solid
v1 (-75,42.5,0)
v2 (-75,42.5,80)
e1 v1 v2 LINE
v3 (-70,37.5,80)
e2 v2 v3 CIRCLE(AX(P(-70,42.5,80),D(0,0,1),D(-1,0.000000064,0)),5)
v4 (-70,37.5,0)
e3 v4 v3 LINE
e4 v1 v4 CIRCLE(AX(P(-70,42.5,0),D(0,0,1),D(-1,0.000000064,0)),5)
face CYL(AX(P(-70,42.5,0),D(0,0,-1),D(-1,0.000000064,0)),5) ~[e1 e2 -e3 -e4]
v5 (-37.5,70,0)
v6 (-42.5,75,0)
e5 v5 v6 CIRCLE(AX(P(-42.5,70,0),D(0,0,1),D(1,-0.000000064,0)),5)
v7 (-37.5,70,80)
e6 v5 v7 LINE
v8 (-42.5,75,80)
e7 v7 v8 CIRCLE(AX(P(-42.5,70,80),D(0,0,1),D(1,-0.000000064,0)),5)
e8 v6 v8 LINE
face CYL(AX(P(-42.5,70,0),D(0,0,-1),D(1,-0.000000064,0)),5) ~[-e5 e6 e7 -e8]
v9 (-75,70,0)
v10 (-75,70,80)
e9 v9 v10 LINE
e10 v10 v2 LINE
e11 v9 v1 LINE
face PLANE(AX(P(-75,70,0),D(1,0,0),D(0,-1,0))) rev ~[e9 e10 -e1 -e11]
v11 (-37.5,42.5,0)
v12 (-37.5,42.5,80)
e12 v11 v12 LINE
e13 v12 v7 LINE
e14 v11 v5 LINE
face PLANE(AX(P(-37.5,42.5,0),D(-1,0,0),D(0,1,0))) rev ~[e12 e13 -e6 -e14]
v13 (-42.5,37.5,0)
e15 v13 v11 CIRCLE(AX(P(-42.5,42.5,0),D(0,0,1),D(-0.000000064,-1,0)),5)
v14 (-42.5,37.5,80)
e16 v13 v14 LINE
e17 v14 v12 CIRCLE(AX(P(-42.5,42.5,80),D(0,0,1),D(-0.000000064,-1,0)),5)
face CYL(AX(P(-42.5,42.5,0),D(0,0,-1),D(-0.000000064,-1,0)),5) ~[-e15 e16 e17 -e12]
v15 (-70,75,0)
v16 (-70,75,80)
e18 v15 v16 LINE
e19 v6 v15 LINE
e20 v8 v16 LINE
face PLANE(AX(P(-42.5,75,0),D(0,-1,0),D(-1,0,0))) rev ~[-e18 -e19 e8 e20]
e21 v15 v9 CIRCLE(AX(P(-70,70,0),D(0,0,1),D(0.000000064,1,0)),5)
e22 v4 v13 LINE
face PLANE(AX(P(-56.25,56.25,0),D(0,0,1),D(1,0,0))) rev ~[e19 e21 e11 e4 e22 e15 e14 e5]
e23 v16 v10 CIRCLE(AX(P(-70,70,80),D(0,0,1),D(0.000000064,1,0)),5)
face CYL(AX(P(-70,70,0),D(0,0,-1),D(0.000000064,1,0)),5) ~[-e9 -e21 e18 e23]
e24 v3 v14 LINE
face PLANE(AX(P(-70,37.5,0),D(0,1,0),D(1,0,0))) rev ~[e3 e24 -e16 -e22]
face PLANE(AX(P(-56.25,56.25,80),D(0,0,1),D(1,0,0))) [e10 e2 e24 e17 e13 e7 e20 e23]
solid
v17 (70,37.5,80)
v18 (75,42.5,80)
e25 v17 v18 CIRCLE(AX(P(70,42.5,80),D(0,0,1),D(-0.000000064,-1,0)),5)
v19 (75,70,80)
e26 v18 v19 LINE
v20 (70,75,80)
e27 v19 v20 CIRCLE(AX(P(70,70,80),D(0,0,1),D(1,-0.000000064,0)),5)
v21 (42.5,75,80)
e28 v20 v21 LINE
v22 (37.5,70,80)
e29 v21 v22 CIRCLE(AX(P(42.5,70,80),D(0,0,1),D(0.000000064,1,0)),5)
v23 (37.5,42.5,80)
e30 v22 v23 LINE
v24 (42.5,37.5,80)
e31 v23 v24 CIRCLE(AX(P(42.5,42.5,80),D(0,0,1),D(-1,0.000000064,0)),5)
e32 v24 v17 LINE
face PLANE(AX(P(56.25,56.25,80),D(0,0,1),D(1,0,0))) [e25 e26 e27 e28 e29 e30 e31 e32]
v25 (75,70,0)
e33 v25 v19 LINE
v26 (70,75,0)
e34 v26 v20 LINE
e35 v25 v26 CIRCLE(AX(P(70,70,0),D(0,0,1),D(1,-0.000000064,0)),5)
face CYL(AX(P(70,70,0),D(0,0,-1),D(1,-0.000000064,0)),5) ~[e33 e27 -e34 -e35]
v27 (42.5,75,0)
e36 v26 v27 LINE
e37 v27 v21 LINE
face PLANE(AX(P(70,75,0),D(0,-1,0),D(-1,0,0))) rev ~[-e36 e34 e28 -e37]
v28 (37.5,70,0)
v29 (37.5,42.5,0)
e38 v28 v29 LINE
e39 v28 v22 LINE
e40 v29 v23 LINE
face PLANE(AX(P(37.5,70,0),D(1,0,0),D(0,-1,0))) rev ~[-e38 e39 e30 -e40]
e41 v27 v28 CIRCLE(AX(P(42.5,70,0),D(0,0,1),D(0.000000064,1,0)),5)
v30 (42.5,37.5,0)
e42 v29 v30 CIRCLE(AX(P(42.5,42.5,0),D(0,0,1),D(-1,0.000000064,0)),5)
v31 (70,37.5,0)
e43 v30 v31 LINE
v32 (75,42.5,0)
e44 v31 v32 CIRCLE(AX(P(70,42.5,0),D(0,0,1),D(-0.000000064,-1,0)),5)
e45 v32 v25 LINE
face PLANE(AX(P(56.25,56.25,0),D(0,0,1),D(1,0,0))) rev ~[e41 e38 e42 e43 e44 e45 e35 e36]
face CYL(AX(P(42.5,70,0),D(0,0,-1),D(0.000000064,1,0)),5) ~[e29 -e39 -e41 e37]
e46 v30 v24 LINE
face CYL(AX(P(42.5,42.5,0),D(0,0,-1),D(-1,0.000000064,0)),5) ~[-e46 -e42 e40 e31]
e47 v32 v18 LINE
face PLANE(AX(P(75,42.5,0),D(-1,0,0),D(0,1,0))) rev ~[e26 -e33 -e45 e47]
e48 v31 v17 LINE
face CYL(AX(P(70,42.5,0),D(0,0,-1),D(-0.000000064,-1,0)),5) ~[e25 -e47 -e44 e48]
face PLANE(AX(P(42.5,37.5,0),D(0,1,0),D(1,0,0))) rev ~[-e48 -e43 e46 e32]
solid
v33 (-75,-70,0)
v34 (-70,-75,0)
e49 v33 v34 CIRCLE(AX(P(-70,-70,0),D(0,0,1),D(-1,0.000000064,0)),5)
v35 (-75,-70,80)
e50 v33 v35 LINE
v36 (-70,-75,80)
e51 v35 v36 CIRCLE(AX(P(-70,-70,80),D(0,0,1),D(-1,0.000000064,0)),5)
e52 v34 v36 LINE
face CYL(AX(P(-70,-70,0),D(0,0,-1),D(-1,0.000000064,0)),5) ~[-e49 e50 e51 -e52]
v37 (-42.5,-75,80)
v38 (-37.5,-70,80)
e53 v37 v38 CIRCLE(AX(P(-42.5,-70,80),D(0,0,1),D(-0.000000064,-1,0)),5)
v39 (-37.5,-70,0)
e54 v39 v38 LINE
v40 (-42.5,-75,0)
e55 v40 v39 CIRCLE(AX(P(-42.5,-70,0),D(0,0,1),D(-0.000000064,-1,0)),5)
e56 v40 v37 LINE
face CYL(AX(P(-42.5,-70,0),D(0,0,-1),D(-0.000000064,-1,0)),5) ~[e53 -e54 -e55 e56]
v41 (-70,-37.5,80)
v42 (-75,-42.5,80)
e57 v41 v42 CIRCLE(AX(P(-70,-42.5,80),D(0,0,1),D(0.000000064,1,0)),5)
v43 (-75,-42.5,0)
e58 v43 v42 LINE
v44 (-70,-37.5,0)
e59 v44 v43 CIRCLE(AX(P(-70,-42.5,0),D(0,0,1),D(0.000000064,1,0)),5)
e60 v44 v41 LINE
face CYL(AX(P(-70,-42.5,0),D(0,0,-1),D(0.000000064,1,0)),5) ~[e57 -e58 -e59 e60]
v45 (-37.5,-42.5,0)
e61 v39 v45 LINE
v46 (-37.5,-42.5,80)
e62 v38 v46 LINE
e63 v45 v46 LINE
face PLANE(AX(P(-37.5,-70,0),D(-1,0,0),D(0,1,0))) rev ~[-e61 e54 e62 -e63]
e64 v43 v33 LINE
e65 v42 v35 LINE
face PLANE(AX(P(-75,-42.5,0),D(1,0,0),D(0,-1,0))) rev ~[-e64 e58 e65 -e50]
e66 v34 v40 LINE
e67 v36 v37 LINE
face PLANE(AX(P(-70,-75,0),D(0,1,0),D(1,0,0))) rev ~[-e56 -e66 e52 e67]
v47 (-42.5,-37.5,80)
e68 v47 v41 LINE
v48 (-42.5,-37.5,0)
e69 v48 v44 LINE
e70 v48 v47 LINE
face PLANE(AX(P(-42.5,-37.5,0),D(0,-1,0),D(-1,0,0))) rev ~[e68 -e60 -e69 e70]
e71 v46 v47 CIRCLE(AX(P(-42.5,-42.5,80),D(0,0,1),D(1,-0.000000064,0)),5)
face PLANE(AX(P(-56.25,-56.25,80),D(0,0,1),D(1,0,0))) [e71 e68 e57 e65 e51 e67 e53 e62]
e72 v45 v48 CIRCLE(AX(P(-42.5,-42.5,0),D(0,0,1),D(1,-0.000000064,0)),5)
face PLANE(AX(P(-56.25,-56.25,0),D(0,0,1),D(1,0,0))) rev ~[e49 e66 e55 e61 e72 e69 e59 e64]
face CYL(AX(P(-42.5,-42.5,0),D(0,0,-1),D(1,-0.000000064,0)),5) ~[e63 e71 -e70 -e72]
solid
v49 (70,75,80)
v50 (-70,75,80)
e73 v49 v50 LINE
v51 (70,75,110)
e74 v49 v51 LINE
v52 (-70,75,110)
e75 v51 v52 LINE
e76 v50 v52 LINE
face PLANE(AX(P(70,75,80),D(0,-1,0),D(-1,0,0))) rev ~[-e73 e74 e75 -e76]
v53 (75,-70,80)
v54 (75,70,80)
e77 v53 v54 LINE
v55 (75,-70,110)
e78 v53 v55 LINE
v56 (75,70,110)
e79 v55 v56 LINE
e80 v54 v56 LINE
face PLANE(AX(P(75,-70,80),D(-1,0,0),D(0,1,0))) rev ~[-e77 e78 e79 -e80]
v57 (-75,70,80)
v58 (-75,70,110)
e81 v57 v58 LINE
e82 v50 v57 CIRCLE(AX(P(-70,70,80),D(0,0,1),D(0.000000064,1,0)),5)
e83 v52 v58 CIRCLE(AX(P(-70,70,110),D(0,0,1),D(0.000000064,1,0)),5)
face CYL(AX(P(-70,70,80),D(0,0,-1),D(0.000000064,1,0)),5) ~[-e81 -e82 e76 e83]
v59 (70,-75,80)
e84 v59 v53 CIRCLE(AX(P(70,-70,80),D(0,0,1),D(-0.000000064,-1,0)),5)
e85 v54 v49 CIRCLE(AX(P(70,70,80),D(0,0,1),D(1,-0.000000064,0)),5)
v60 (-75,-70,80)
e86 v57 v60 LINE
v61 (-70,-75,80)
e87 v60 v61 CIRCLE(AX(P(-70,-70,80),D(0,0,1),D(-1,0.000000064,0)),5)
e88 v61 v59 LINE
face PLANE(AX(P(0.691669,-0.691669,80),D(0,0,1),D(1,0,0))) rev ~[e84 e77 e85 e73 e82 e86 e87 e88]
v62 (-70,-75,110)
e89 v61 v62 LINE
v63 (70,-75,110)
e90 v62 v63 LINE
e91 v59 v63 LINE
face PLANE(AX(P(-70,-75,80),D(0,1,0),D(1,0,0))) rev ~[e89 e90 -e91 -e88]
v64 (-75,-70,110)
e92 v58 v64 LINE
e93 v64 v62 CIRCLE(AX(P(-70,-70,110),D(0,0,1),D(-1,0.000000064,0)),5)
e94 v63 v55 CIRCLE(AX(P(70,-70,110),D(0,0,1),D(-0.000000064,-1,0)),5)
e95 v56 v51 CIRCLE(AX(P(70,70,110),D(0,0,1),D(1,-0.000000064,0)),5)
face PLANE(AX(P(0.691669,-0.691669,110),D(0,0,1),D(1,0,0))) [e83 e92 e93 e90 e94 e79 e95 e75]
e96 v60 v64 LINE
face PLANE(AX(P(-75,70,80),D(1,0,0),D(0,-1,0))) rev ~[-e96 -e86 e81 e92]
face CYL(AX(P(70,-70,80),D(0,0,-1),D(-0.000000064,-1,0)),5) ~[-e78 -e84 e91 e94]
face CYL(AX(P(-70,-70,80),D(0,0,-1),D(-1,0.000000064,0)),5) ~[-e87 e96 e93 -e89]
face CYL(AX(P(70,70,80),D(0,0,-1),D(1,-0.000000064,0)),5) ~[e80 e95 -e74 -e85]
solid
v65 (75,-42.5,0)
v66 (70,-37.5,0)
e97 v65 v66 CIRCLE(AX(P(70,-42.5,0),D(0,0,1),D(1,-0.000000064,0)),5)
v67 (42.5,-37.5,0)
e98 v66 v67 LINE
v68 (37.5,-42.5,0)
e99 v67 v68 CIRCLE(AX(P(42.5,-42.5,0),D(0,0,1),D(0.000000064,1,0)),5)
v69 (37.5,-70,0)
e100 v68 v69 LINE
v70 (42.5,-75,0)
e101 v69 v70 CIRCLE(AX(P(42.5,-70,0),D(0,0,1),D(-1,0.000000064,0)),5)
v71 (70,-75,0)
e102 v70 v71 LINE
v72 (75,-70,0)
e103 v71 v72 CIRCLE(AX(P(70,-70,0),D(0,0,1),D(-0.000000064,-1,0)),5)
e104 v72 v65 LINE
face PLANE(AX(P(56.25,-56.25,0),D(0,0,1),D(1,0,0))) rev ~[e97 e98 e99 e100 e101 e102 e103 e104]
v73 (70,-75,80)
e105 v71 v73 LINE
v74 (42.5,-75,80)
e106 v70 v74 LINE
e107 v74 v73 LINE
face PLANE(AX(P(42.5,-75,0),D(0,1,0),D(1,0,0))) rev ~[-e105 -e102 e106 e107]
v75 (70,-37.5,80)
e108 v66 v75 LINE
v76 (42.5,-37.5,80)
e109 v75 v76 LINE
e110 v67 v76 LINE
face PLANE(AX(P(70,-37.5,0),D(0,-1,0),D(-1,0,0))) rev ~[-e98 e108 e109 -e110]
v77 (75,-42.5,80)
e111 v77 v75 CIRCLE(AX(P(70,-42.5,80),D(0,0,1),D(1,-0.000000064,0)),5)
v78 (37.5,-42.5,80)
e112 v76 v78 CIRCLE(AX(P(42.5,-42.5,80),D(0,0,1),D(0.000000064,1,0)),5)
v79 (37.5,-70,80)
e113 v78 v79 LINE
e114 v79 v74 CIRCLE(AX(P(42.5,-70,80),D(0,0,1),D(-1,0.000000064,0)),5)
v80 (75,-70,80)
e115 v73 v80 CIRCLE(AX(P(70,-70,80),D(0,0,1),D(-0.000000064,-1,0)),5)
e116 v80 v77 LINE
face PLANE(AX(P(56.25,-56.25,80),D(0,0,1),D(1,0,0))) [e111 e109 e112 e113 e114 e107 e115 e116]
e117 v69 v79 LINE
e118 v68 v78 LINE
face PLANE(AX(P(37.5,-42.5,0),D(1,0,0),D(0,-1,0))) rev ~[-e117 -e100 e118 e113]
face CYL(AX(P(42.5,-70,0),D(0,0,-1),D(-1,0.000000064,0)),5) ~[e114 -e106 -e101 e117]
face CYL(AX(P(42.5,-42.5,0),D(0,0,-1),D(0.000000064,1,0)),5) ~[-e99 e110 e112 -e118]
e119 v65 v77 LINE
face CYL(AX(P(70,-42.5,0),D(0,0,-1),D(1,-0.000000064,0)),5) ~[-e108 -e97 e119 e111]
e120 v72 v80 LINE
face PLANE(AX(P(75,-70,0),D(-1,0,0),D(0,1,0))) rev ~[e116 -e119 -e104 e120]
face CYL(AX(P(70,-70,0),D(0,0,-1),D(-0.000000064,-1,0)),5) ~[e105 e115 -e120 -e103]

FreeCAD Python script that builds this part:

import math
import FreeCAD as App
import Part
import Sketcher
from FreeCAD import Vector

doc = App.newDocument("Part")
body = doc.addObject("PartDesign::Body", "Body")
body.AllowCompound = True

# Sketch on XY plane
sketch1 = body.newObject("Sketcher::SketchObject", "Sketch")
sketch1.AttachmentSupport = (doc.getObject("XY_Plane"), [""])
sketch1.MapMode = "FlatFace"
sketch1.addGeometry(Part.LineSegment(Vector(37.5, 70, 0), Vector(37.5, 42.5, 0)), False)
sketch1.addGeometry(Part.ArcOfCircle(Part.Circle(Vector(42.5, 42.5, 0), Vector(0, 0, 1), 5), math.radians(180), math.radians(270)), False)
sketch1.addGeometry(Part.LineSegment(Vector(42.5, 37.5, 0), Vector(70, 37.5, 0)), False)
sketch1.addGeometry(Part.ArcOfCircle(Part.Circle(Vector(70, 42.5, 0), Vector(0, 0, 1), 5), math.radians(-90), math.radians(0)), False)
sketch1.addGeometry(Part.LineSegment(Vector(75, 42.5, 0), Vector(75, 70, 0)), False)
sketch1.addGeometry(Part.ArcOfCircle(Part.Circle(Vector(70, 70, 0), Vector(0, 0, 1), 5), math.radians(0), math.radians(90)), False)
sketch1.addGeometry(Part.LineSegment(Vector(70, 75, 0), Vector(42.5, 75, 0)), False)
sketch1.addGeometry(Part.ArcOfCircle(Part.Circle(Vector(42.5, 70, 0), Vector(0, 0, 1), 5), math.radians(90), math.radians(180)), False)
sketch1.addGeometry(Part.LineSegment(Vector(-70, 37.5, 0), Vector(-42.5, 37.5, 0)), False)
sketch1.addGeometry(Part.ArcOfCircle(Part.Circle(Vector(-42.5, 42.5, 0), Vector(0, 0, 1), 5), math.radians(-90), math.radians(0)), False)
sketch1.addGeometry(Part.LineSegment(Vector(-37.5, 42.5, 0), Vector(-37.5, 70, 0)), False)
sketch1.addGeometry(Part.ArcOfCircle(Part.Circle(Vector(-42.5, 70, 0), Vector(0, 0, 1), 5), math.radians(0), math.radians(90)), False)
sketch1.addGeometry(Part.LineSegment(Vector(-42.5, 75, 0), Vector(-70, 75, 0)), False)
sketch1.addGeometry(Part.ArcOfCircle(Part.Circle(Vector(-70, 70, 0), Vector(0, 0, 1), 5), math.radians(90), math.radians(180)), False)
sketch1.addGeometry(Part.LineSegment(Vector(-75, 70, 0), Vector(-75, 42.5, 0)), False)
sketch1.addGeometry(Part.ArcOfCircle(Part.Circle(Vector(-70, 42.5, 0), Vector(0, 0, 1), 5), math.radians(180), math.radians(270)), False)
sketch1.addGeometry(Part.ArcOfCircle(Part.Circle(Vector(-42.5, -42.5, 0), Vector(0, 0, 1), 5), math.radians(0), math.radians(90)), False)
sketch1.addGeometry(Part.LineSegment(Vector(-42.5, -37.5, 0), Vector(-70, -37.5, 0)), False)
sketch1.addGeometry(Part.ArcOfCircle(Part.Circle(Vector(-70, -42.5, 0), Vector(0, 0, 1), 5), math.radians(90), math.radians(180)), False)
sketch1.addGeometry(Part.LineSegment(Vector(-75, -42.5, 0), Vector(-75, -70, 0)), False)
sketch1.addGeometry(Part.ArcOfCircle(Part.Circle(Vector(-70, -70, 0), Vector(0, 0, 1), 5), math.radians(180), math.radians(270)), False)
sketch1.addGeometry(Part.LineSegment(Vector(-70, -75, 0), Vector(-42.5, -75, 0)), False)
sketch1.addGeometry(Part.ArcOfCircle(Part.Circle(Vector(-42.5, -70, 0), Vector(0, 0, 1), 5), math.radians(-90), math.radians(0)), False)
sketch1.addGeometry(Part.LineSegment(Vector(-37.5, -70, 0), Vector(-37.5, -42.5, 0)), False)
sketch1.addGeometry(Part.LineSegment(Vector(70, -37.5, 0), Vector(42.5, -37.5, 0)), False)
sketch1.addGeometry(Part.ArcOfCircle(Part.Circle(Vector(42.5, -42.5, 0), Vector(0, 0, 1), 5), math.radians(90), math.radians(180)), False)
sketch1.addGeometry(Part.LineSegment(Vector(37.5, -42.5, 0), Vector(37.5, -70, 0)), False)
sketch1.addGeometry(Part.ArcOfCircle(Part.Circle(Vector(42.5, -70, 0), Vector(0, 0, 1), 5), math.radians(180), math.radians(270)), False)
sketch1.addGeometry(Part.LineSegment(Vector(42.5, -75, 0), Vector(70, -75, 0)), False)
sketch1.addGeometry(Part.ArcOfCircle(Part.Circle(Vector(70, -70, 0), Vector(0, 0, 1), 5), math.radians(-90), math.radians(0)), False)
sketch1.addGeometry(Part.LineSegment(Vector(75, -70, 0), Vector(75, -42.5, 0)), False)
sketch1.addGeometry(Part.ArcOfCircle(Part.Circle(Vector(70, -42.5, 0), Vector(0, 0, 1), 5), math.radians(0), math.radians(90)), False)
sketch1.addConstraint(Sketcher.Constraint("Tangent", 0, 2, 1, 1))
sketch1.addConstraint(Sketcher.Constraint("Tangent", 1, 2, 2, 1))
sketch1.addConstraint(Sketcher.Constraint("Tangent", 2, 2, 3, 1))
sketch1.addConstraint(Sketcher.Constraint("Tangent", 3, 2, 4, 1))
sketch1.addConstraint(Sketcher.Constraint("Tangent", 4, 2, 5, 1))
sketch1.addConstraint(Sketcher.Constraint("Tangent", 5, 2, 6, 1))
sketch1.addConstraint(Sketcher.Constraint("Tangent", 6, 2, 7, 1))
sketch1.addConstraint(Sketcher.Constraint("Tangent", 7, 2, 0, 1))
sketch1.addConstraint(Sketcher.Constraint("Tangent", 8, 2, 9, 1))
sketch1.addConstraint(Sketcher.Constraint("Tangent", 9, 2, 10, 1))
sketch1.addConstraint(Sketcher.Constraint("Tangent", 10, 2, 11, 1))
sketch1.addConstraint(Sketcher.Constraint("Tangent", 11, 2, 12, 1))
sketch1.addConstraint(Sketcher.Constraint("Tangent", 12, 2, 13, 1))
sketch1.addConstraint(Sketcher.Constraint("Tangent", 13, 2, 14, 1))
sketch1.addConstraint(Sketcher.Constraint("Tangent", 14, 2, 15, 1))
sketch1.addConstraint(Sketcher.Constraint("Tangent", 15, 2, 8, 1))
sketch1.addConstraint(Sketcher.Constraint("Tangent", 16, 2, 17, 1))
sketch1.addConstraint(Sketcher.Constraint("Tangent", 17, 2, 18, 1))
sketch1.addConstraint(Sketcher.Constraint("Tangent", 18, 2, 19, 1))
sketch1.addConstraint(Sketcher.Constraint("Tangent", 19, 2, 20, 1))
sketch1.addConstraint(Sketcher.Constraint("Tangent", 20, 2, 21, 1))
sketch1.addConstraint(Sketcher.Constraint("Tangent", 21, 2, 22, 1))
sketch1.addConstraint(Sketcher.Constraint("Tangent", 22, 2, 23, 1))
sketch1.addConstraint(Sketcher.Constraint("Tangent", 23, 2, 16, 1))
sketch1.addConstraint(Sketcher.Constraint("Tangent", 24, 2, 25, 1))
sketch1.addConstraint(Sketcher.Constraint("Tangent", 25, 2, 26, 1))
sketch1.addConstraint(Sketcher.Constraint("Tangent", 26, 2, 27, 1))
sketch1.addConstraint(Sketcher.Constraint("Tangent", 27, 2, 28, 1))
sketch1.addConstraint(Sketcher.Constraint("Tangent", 28, 2, 29, 1))
sketch1.addConstraint(Sketcher.Constraint("Tangent", 29, 2, 30, 1))
sketch1.addConstraint(Sketcher.Constraint("Tangent", 30, 2, 31, 1))
sketch1.addConstraint(Sketcher.Constraint("Tangent", 31, 2, 24, 1))
sketch1.addConstraint(Sketcher.Constraint("Vertical", 0))
sketch1.addConstraint(Sketcher.Constraint("Horizontal", 2))
sketch1.addConstraint(Sketcher.Constraint("Vertical", 4))
sketch1.addConstraint(Sketcher.Constraint("Horizontal", 6))
sketch1.addConstraint(Sketcher.Constraint("Horizontal", 8))
sketch1.addConstraint(Sketcher.Constraint("Vertical", 10))
sketch1.addConstraint(Sketcher.Constraint("Horizontal", 12))
sketch1.addConstraint(Sketcher.Constraint("Vertical", 14))
sketch1.addConstraint(Sketcher.Constraint("Horizontal", 17))
sketch1.addConstraint(Sketcher.Constraint("Vertical", 19))
sketch1.addConstraint(Sketcher.Constraint("Horizontal", 21))
sketch1.addConstraint(Sketcher.Constraint("Vertical", 23))
sketch1.addConstraint(Sketcher.Constraint("Horizontal", 24))
sketch1.addConstraint(Sketcher.Constraint("Vertical", 26))
sketch1.addConstraint(Sketcher.Constraint("Horizontal", 28))
sketch1.addConstraint(Sketcher.Constraint("Vertical", 30))
sketch1.addConstraint(Sketcher.Constraint("Equal", 1, 3))
sketch1.addConstraint(Sketcher.Constraint("Equal", 3, 5))
sketch1.addConstraint(Sketcher.Constraint("Equal", 5, 7))
sketch1.addConstraint(Sketcher.Constraint("Equal", 7, 9))
sketch1.addConstraint(Sketcher.Constraint("Equal", 9, 11))
sketch1.addConstraint(Sketcher.Constraint("Equal", 11, 13))
sketch1.addConstraint(Sketcher.Constraint("Equal", 13, 15))
sketch1.addConstraint(Sketcher.Constraint("Equal", 15, 16))
sketch1.addConstraint(Sketcher.Constraint("Equal", 16, 18))
sketch1.addConstraint(Sketcher.Constraint("Equal", 18, 20))
sketch1.addConstraint(Sketcher.Constraint("Equal", 20, 22))
sketch1.addConstraint(Sketcher.Constraint("Equal", 22, 25))
sketch1.addConstraint(Sketcher.Constraint("Equal", 25, 27))
sketch1.addConstraint(Sketcher.Constraint("Equal", 27, 29))
sketch1.addConstraint(Sketcher.Constraint("Equal", 29, 31))
sketch1.addConstraint(Sketcher.Constraint("Symmetric", 1, 3, 16, 3, -1, 1))
sketch1.addConstraint(Sketcher.Constraint("Symmetric", 5, 3, 20, 3, -1, 1))
sketch1.addConstraint(Sketcher.Constraint("Symmetric", 9, 3, 25, 3, -1, 1))
sketch1.addConstraint(Sketcher.Constraint("Symmetric", 13, 3, 29, 3, -1, 1))
sketch1.addConstraint(Sketcher.Constraint("Symmetric", 1, 3, 9, 3, -2))
sketch1.addConstraint(Sketcher.Constraint("Symmetric", 5, 3, 13, 3, -2))
sketch1.addConstraint(Sketcher.Constraint("Equal", 28, 0))
sketch1.addConstraint(Sketcher.Constraint("Radius", 1, 5.0))
sketch1.addConstraint(Sketcher.Constraint("DistanceX", 2, 1, 2, 2, 27.5))
sketch1.addConstraint(Sketcher.Constraint("DistanceX", -1, 1, 3, 3, 70.0))
sketch1.addConstraint(Sketcher.Constraint("DistanceY", -1, 1, 5, 3, 70.0))
pad1 = body.newObject("PartDesign::Pad", "Pad")
pad1.Profile = sketch1
pad1.Length = 80
body2 = doc.addObject("PartDesign::Body", "Body001")

# Sketch on XY plane
sketch2 = body2.newObject("Sketcher::SketchObject", "Sketch001")
sketch2.AttachmentSupport = (doc.getObject("XY_Plane001"), [""])
sketch2.MapMode = "FlatFace"
sketch2.AttachmentOffset = App.Placement(Vector(0, 0, 80), App.Rotation())
sketch2.addGeometry(Part.LineSegment(Vector(70, 75, 0), Vector(-70, 75, 0)), False)
sketch2.addGeometry(Part.ArcOfCircle(Part.Circle(Vector(-70, 70, 0), Vector(0, 0, 1), 5), math.radians(90), math.radians(180)), False)
sketch2.addGeometry(Part.LineSegment(Vector(-75, 70, 0), Vector(-75, -70, 0)), False)
sketch2.addGeometry(Part.ArcOfCircle(Part.Circle(Vector(-70, -70, 0), Vector(0, 0, 1), 5), math.radians(180), math.radians(270)), False)
sketch2.addGeometry(Part.LineSegment(Vector(-70, -75, 0), Vector(70, -75, 0)), False)
sketch2.addGeometry(Part.ArcOfCircle(Part.Circle(Vector(70, -70, 0), Vector(0, 0, 1), 5), math.radians(-90), math.radians(0)), False)
sketch2.addGeometry(Part.LineSegment(Vector(75, -70, 0), Vector(75, 70, 0)), False)
sketch2.addGeometry(Part.ArcOfCircle(Part.Circle(Vector(70, 70, 0), Vector(0, 0, 1), 5), math.radians(0), math.radians(90)), False)
sketch2.addConstraint(Sketcher.Constraint("Tangent", 0, 2, 1, 1))
sketch2.addConstraint(Sketcher.Constraint("Tangent", 1, 2, 2, 1))
sketch2.addConstraint(Sketcher.Constraint("Tangent", 2, 2, 3, 1))
sketch2.addConstraint(Sketcher.Constraint("Tangent", 3, 2, 4, 1))
sketch2.addConstraint(Sketcher.Constraint("Tangent", 4, 2, 5, 1))
sketch2.addConstraint(Sketcher.Constraint("Tangent", 5, 2, 6, 1))
sketch2.addConstraint(Sketcher.Constraint("Tangent", 6, 2, 7, 1))
sketch2.addConstraint(Sketcher.Constraint("Tangent", 7, 2, 0, 1))
sketch2.addConstraint(Sketcher.Constraint("Horizontal", 0))
sketch2.addConstraint(Sketcher.Constraint("Vertical", 2))
sketch2.addConstraint(Sketcher.Constraint("Horizontal", 4))
sketch2.addConstraint(Sketcher.Constraint("Vertical", 6))
sketch2.addConstraint(Sketcher.Constraint("Equal", 1, 3))
sketch2.addConstraint(Sketcher.Constraint("Equal", 3, 5))
sketch2.addConstraint(Sketcher.Constraint("Equal", 5, 7))
sketch2.addConstraint(Sketcher.Constraint("Symmetric", 1, 3, 5, 3, -1, 1))
sketch2.addConstraint(Sketcher.Constraint("Equal", 4, 2))
sketch2.addConstraint(Sketcher.Constraint("Radius", 1, 5.0))
sketch2.addConstraint(Sketcher.Constraint("DistanceX", 0, 2, 0, 1, 140.0))
pad2 = body2.newObject("PartDesign::Pad", "Pad001")
pad2.Profile = sketch2
pad2.Length = 30

doc.recompute()
